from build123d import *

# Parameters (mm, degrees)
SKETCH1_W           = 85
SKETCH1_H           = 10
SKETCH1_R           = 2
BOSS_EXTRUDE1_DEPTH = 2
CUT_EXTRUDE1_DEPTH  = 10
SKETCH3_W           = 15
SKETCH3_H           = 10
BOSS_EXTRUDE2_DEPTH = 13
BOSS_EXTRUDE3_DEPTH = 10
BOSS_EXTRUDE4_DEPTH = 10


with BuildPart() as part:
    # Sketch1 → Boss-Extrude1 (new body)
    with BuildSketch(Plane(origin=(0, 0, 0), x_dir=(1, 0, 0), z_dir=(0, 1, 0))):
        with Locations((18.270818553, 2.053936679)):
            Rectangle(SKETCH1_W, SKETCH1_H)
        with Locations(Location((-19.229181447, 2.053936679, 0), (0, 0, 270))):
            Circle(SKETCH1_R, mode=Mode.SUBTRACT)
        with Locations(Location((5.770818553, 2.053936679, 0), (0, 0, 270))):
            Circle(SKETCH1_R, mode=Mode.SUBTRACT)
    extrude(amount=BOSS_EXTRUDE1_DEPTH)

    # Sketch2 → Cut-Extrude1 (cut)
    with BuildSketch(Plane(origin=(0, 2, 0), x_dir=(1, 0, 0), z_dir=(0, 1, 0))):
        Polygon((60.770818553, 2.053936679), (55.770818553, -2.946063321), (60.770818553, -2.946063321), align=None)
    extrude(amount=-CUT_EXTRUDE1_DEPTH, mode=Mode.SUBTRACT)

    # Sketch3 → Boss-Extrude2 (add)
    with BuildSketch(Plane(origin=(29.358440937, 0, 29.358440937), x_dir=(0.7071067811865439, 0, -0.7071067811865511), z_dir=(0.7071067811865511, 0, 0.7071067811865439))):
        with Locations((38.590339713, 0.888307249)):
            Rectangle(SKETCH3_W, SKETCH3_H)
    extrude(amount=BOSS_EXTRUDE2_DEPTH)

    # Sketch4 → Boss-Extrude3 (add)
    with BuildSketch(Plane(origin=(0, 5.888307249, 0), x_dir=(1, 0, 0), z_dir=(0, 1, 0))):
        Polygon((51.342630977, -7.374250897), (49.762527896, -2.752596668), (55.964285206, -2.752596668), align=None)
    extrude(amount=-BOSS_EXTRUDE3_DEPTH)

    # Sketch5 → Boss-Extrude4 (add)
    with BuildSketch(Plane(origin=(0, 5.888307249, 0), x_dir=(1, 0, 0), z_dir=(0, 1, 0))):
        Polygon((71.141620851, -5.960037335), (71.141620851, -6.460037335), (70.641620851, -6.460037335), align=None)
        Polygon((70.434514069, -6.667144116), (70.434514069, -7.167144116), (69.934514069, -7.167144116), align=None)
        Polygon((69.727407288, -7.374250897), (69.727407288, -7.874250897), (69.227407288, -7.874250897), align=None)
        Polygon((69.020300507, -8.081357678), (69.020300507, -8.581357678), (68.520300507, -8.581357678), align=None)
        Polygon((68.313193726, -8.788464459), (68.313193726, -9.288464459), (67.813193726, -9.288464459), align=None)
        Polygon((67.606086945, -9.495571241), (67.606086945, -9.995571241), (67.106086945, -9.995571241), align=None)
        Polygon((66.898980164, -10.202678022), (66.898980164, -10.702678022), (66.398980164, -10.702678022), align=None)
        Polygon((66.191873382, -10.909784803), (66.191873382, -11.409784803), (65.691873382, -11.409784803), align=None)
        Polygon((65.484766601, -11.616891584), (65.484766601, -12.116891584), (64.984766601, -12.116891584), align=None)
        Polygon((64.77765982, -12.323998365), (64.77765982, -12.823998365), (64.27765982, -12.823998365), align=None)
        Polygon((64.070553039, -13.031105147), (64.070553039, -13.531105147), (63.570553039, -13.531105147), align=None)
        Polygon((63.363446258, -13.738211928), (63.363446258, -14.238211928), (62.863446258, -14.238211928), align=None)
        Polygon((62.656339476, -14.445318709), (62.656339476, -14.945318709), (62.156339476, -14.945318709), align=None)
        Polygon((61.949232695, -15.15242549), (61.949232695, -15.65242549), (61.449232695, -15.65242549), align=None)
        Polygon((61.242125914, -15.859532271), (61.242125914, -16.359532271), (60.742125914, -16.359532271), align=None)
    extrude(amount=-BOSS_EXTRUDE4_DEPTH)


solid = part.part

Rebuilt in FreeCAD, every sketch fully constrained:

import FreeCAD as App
import Part
import Sketcher

V = App.Vector
Q = App.Units.Quantity

doc = App.newDocument("Part")
body = doc.addObject("PartDesign::Body", "Body")

# Sketch on XZ plane
sketch1 = body.newObject("Sketcher::SketchObject", "Sketch")
sketch1.AttachmentSupport = (doc.getObject("XZ_Plane"), [""])
sketch1.MapMode = "FlatFace"
sketch1.addGeometry(Part.LineSegment(V(-24.2, -7.1, 0), V(-24.2, 2.9, 0)), False)
sketch1.addGeometry(Part.LineSegment(V(-24.2, 2.9, 0), V(60.8, 2.9, 0)), False)
sketch1.addGeometry(Part.LineSegment(V(60.8, 2.9, 0), V(60.8, -7.1, 0)), False)
sketch1.addGeometry(Part.LineSegment(V(60.8, -7.1, 0), V(-24.2, -7.1, 0)), False)
sketch1.addGeometry(Part.Circle(V(-19.2, -2.1, 0), V(0, 0, 1), 2), False)
sketch1.addGeometry(Part.Circle(V(5.8, -2.1, 0), V(0, 0, 1), 2), False)
sketch1.addConstraint(Sketcher.Constraint("Coincident", 0, 2, 1, 1))
sketch1.addConstraint(Sketcher.Constraint("Coincident", 1, 2, 2, 1))
sketch1.addConstraint(Sketcher.Constraint("Coincident", 2, 2, 3, 1))
sketch1.addConstraint(Sketcher.Constraint("Coincident", 3, 2, 0, 1))
sketch1.addConstraint(Sketcher.Constraint("Vertical", 0))
sketch1.addConstraint(Sketcher.Constraint("Horizontal", 1))
sketch1.addConstraint(Sketcher.Constraint("Vertical", 2))
sketch1.addConstraint(Sketcher.Constraint("Horizontal", 3))
sketch1.addConstraint(Sketcher.Constraint("Equal", 4, 5))
sketch1.addConstraint(Sketcher.Constraint("Horizontal", 4, 3, 5, 3))
sketch1.addConstraint(Sketcher.Constraint("Diameter", 4, Q("4 mm")))
sketch1.addConstraint(Sketcher.Constraint("DistanceX", 1, 1, 1, 2, Q("85 mm")))
sketch1.addConstraint(Sketcher.Constraint("DistanceY", 0, 1, 0, 2, Q("10 mm")))
sketch1.addConstraint(Sketcher.Constraint("DistanceX", 4, 3, 5, 3, Q("25 mm")))
sketch1.addConstraint(Sketcher.Constraint("DistanceX", 0, 2, 4, 3, Q("5 mm")))
sketch1.addConstraint(Sketcher.Constraint("DistanceY", 4, 3, 0, 2, Q("5 mm")))
sketch1.addConstraint(Sketcher.Constraint("DistanceX", 4, 3, -1, 1, Q("19.229181 mm")))
sketch1.addConstraint(Sketcher.Constraint("DistanceY", 4, 3, -1, 1, Q("2.053937 mm")))
pad1 = body.newObject("PartDesign::Pad", "Pad")
pad1.Profile = sketch1
pad1.Length = 2
pad1.Reversed = True

# Sketch on XZ plane
sketch2 = body.newObject("Sketcher::SketchObject", "Sketch001")
sketch2.AttachmentSupport = (doc.getObject("XZ_Plane"), [""])
sketch2.MapMode = "FlatFace"
sketch2.AttachmentOffset = App.Placement(V(0, 0, -2), App.Rotation())
sketch2.addGeometry(Part.LineSegment(V(61, -2, 0), V(56, 3, 0)), False)
sketch2.addGeometry(Part.LineSegment(V(56, 3, 0), V(61, 3, 0)), False)
sketch2.addGeometry(Part.LineSegment(V(61, 3, 0), V(61, -2, 0)), False)
sketch2.addConstraint(Sketcher.Constraint("Coincident", 0, 2, 1, 1))
sketch2.addConstraint(Sketcher.Constraint("Coincident", 1, 2, 2, 1))
sketch2.addConstraint(Sketcher.Constraint("Coincident", 2, 2, 0, 1))
sketch2.addConstraint(Sketcher.Constraint("Horizontal", 1))
sketch2.addConstraint(Sketcher.Constraint("Vertical", 2))
sketch2.addConstraint(Sketcher.Constraint("Equal", 1, 2))
sketch2.addConstraint(Sketcher.Constraint("DistanceX", 1, 1, 1, 2, Q("5 mm")))
sketch2.addConstraint(Sketcher.Constraint("DistanceX", -1, 1, 0, 2, Q("55.770819 mm")))
sketch2.addConstraint(Sketcher.Constraint("DistanceY", -1, 1, 0, 2, Q("2.946063 mm")))
pocket1 = body.newObject("PartDesign::Pocket", "Pocket")
pocket1.Profile = sketch2
pocket1.Length = 10
pocket1.Reversed = True

# Sketch on an angled plane
sketch3 = body.newObject("Sketcher::SketchObject", "Sketch002")
sketch3.Placement = App.Placement(V(29.358441, 0, 29.358441), App.Rotation(V(0.707106781, 0, -0.707106781), V(0, 0.999999999, 0), V(0.707106781, 0, 0.707106781), "ZXY"))
sketch3.addGeometry(Part.LineSegment(V(31, 6, 0), V(31, -4, 0)), False)
sketch3.addGeometry(Part.LineSegment(V(31, -4, 0), V(46, -4, 0)), False)
sketch3.addGeometry(Part.LineSegment(V(46, -4, 0), V(46, 6, 0)), False)
sketch3.addGeometry(Part.LineSegment(V(46, 6, 0), V(31, 6, 0)), False)
sketch3.addConstraint(Sketcher.Constraint("Coincident", 0, 2, 1, 1))
sketch3.addConstraint(Sketcher.Constraint("Coincident", 1, 2, 2, 1))
sketch3.addConstraint(Sketcher.Constraint("Coincident", 2, 2, 3, 1))
sketch3.addConstraint(Sketcher.Constraint("Coincident", 3, 2, 0, 1))
sketch3.addConstraint(Sketcher.Constraint("Vertical", 0))
sketch3.addConstraint(Sketcher.Constraint("Horizontal", 1))
sketch3.addConstraint(Sketcher.Constraint("Vertical", 2))
sketch3.addConstraint(Sketcher.Constraint("Horizontal", 3))
sketch3.addConstraint(Sketcher.Constraint("DistanceX", 1, 1, 1, 2, Q("15 mm")))
sketch3.addConstraint(Sketcher.Constraint("DistanceY", 0, 2, 0, 1, Q("10 mm")))
sketch3.addConstraint(Sketcher.Constraint("DistanceX", -1, 1, 0, 2, Q("31.09034 mm")))
sketch3.addConstraint(Sketcher.Constraint("DistanceY", 0, 2, -1, 1, Q("4.111693 mm")))
pad2 = body.newObject("PartDesign::Pad", "Pad001")
pad2.Profile = sketch3
pad2.Length = 13

# Sketch on XZ plane
sketch4 = body.newObject("Sketcher::SketchObject", "Sketch003")
sketch4.AttachmentSupport = (doc.getObject("XZ_Plane"), [""])
sketch4.MapMode = "FlatFace"
sketch4.AttachmentOffset = App.Placement(V(0, 0, -5.888307), App.Rotation())
sketch4.addGeometry(Part.LineSegment(V(49.8, 2.8, 0), V(51.3, 7.4, 0)), False)
sketch4.addGeometry(Part.LineSegment(V(51.3, 7.4, 0), V(56, 2.8, 0)), False)
sketch4.addGeometry(Part.LineSegment(V(56, 2.8, 0), V(49.8, 2.8, 0)), False)
sketch4.addConstraint(Sketcher.Constraint("Coincident", 0, 2, 1, 1))
sketch4.addConstraint(Sketcher.Constraint("Coincident", 1, 2, 2, 1))
sketch4.addConstraint(Sketcher.Constraint("Coincident", 2, 2, 0, 1))
sketch4.addConstraint(Sketcher.Constraint("Horizontal", 2))
sketch4.addConstraint(Sketcher.Constraint("Angle", 1, Q("-45 deg")))
sketch4.addConstraint(Sketcher.Constraint("DistanceX", 2, 2, 2, 1, Q("6.201757 mm")))
sketch4.addConstraint(Sketcher.Constraint("DistanceX", -1, 1, 0, 2, Q("51.342631 mm")))
sketch4.addConstraint(Sketcher.Constraint("DistanceY", -1, 1, 0, 2, Q("7.374251 mm")))
sketch4.addConstraint(Sketcher.Constraint("Distance", 0, Q("4.884303 mm")))
pad3 = body.newObject("PartDesign::Pad", "Pad002")
pad3.Profile = sketch4
pad3.Length = 10

# Sketch on XZ plane
sketch5 = body.newObject("Sketcher::SketchObject", "Sketch004")
sketch5.AttachmentSupport = (doc.getObject("XZ_Plane"), [""])
sketch5.MapMode = "FlatFace"
sketch5.AttachmentOffset = App.Placement(V(0, 0, -5.888307), App.Rotation())
sketch5.addGeometry(Part.LineSegment(V(71.14, 6.46, 0), V(71.14, 5.96, 0)), False)
sketch5.addGeometry(Part.LineSegment(V(71.14, 5.96, 0), V(70.64, 6.46, 0)), False)
sketch5.addGeometry(Part.LineSegment(V(70.64, 6.46, 0), V(71.14, 6.46, 0)), False)
sketch5.addGeometry(Part.LineSegment(V(70.43, 7.17, 0), V(70.43, 6.67, 0)), False)
sketch5.addGeometry(Part.LineSegment(V(70.43, 6.67, 0), V(69.93, 7.17, 0)), False)
sketch5.addGeometry(Part.LineSegment(V(69.93, 7.17, 0), V(70.43, 7.17, 0)), False)
sketch5.addGeometry(Part.LineSegment(V(69.73, 7.87, 0), V(69.73, 7.37, 0)), False)
sketch5.addGeometry(Part.LineSegment(V(69.73, 7.37, 0), V(69.23, 7.87, 0)), False)
sketch5.addGeometry(Part.LineSegment(V(69.23, 7.87, 0), V(69.73, 7.87, 0)), False)
sketch5.addGeometry(Part.LineSegment(V(69.02, 8.58, 0), V(69.02, 8.08, 0)), False)
sketch5.addGeometry(Part.LineSegment(V(69.02, 8.08, 0), V(68.52, 8.58, 0)), False)
sketch5.addGeometry(Part.LineSegment(V(68.52, 8.58, 0), V(69.02, 8.58, 0)), False)
sketch5.addGeometry(Part.LineSegment(V(68.31, 9.29, 0), V(68.31, 8.79, 0)), False)
sketch5.addGeometry(Part.LineSegment(V(68.31, 8.79, 0), V(67.81, 9.29, 0)), False)
sketch5.addGeometry(Part.LineSegment(V(67.81, 9.29, 0), V(68.31, 9.29, 0)), False)
sketch5.addGeometry(Part.LineSegment(V(67.61, 10, 0), V(67.61, 9.5, 0)), False)
sketch5.addGeometry(Part.LineSegment(V(67.61, 9.5, 0), V(67.11, 10, 0)), False)
sketch5.addGeometry(Part.LineSegment(V(67.11, 10, 0), V(67.61, 10, 0)), False)
sketch5.addGeometry(Part.LineSegment(V(66.9, 10.7, 0), V(66.9, 10.2, 0)), False)
sketch5.addGeometry(Part.LineSegment(V(66.9, 10.2, 0), V(66.4, 10.7, 0)), False)
sketch5.addGeometry(Part.LineSegment(V(66.4, 10.7, 0), V(66.9, 10.7, 0)), False)
sketch5.addGeometry(Part.LineSegment(V(66.19, 11.41, 0), V(66.19, 10.91, 0)), False)
sketch5.addGeometry(Part.LineSegment(V(66.19, 10.91, 0), V(65.69, 11.41, 0)), False)
sketch5.addGeometry(Part.LineSegment(V(65.69, 11.41, 0), V(66.19, 11.41, 0)), False)
sketch5.addGeometry(Part.LineSegment(V(65.48, 12.12, 0), V(65.48, 11.62, 0)), False)
sketch5.addGeometry(Part.LineSegment(V(65.48, 11.62, 0), V(64.98, 12.12, 0)), False)
sketch5.addGeometry(Part.LineSegment(V(64.98, 12.12, 0), V(65.48, 12.12, 0)), False)
sketch5.addGeometry(Part.LineSegment(V(64.78, 12.82, 0), V(64.78, 12.32, 0)), False)
sketch5.addGeometry(Part.LineSegment(V(64.78, 12.32, 0), V(64.28, 12.82, 0)), False)
sketch5.addGeometry(Part.LineSegment(V(64.28, 12.82, 0), V(64.78, 12.82, 0)), False)
sketch5.addGeometry(Part.LineSegment(V(64.07, 13.53, 0), V(64.07, 13.03, 0)), False)
sketch5.addGeometry(Part.LineSegment(V(64.07, 13.03, 0), V(63.57, 13.53, 0)), False)
sketch5.addGeometry(Part.LineSegment(V(63.57, 13.53, 0), V(64.07, 13.53, 0)), False)
sketch5.addGeometry(Part.LineSegment(V(63.36, 14.24, 0), V(63.36, 13.74, 0)), False)
sketch5.addGeometry(Part.LineSegment(V(63.36, 13.74, 0), V(62.86, 14.24, 0)), False)
sketch5.addGeometry(Part.LineSegment(V(62.86, 14.24, 0), V(63.36, 14.24, 0)), False)
sketch5.addGeometry(Part.LineSegment(V(62.66, 14.95, 0), V(62.66, 14.45, 0)), False)
sketch5.addGeometry(Part.LineSegment(V(62.66, 14.45, 0), V(62.16, 14.95, 0)), False)
sketch5.addGeometry(Part.LineSegment(V(62.16, 14.95, 0), V(62.66, 14.95, 0)), False)
sketch5.addGeometry(Part.LineSegment(V(61.95, 15.65, 0), V(61.95, 15.15, 0)), False)
sketch5.addGeometry(Part.LineSegment(V(61.95, 15.15, 0), V(61.45, 15.65, 0)), False)
sketch5.addGeometry(Part.LineSegment(V(61.45, 15.65, 0), V(61.95, 15.65, 0)), False)
sketch5.addGeometry(Part.LineSegment(V(61.24, 16.36, 0), V(61.24, 15.86, 0)), False)
sketch5.addGeometry(Part.LineSegment(V(61.24, 15.86, 0), V(60.74, 16.36, 0)), False)
sketch5.addGeometry(Part.LineSegment(V(60.74, 16.36, 0), V(61.24, 16.36, 0)), False)
sketch5.addConstraint(Sketcher.Constraint("Coincident", 0, 2, 1, 1))
sketch5.addConstraint(Sketcher.Constraint("Coincident", 1, 2, 2, 1))
sketch5.addConstraint(Sketcher.Constraint("Coincident", 2, 2, 0, 1))
sketch5.addConstraint(Sketcher.Constraint("Coincident", 3, 2, 4, 1))
sketch5.addConstraint(Sketcher.Constraint("Coincident", 4, 2, 5, 1))
sketch5.addConstraint(Sketcher.Constraint("Coincident", 5, 2, 3, 1))
sketch5.addConstraint(Sketcher.Constraint("Coincident", 6, 2, 7, 1))
sketch5.addConstraint(Sketcher.Constraint("Coincident", 7, 2, 8, 1))
sketch5.addConstraint(Sketcher.Constraint("Coincident", 8, 2, 6, 1))
sketch5.addConstraint(Sketcher.Constraint("Coincident", 9, 2, 10, 1))
sketch5.addConstraint(Sketcher.Constraint("Coincident", 10, 2, 11, 1))
sketch5.addConstraint(Sketcher.Constraint("Coincident", 11, 2, 9, 1))
sketch5.addConstraint(Sketcher.Constraint("Coincident", 12, 2, 13, 1))
sketch5.addConstraint(Sketcher.Constraint("Coincident", 13, 2, 14, 1))
sketch5.addConstraint(Sketcher.Constraint("Coincident", 14, 2, 12, 1))
sketch5.addConstraint(Sketcher.Constraint("Coincident", 15, 2, 16, 1))
sketch5.addConstraint(Sketcher.Constraint("Coincident", 16, 2, 17, 1))
sketch5.addConstraint(Sketcher.Constraint("Coincident", 17, 2, 15, 1))
sketch5.addConstraint(Sketcher.Constraint("Coincident", 18, 2, 19, 1))
sketch5.addConstraint(Sketcher.Constraint("Coincident", 19, 2, 20, 1))
sketch5.addConstraint(Sketcher.Constraint("Coincident", 20, 2, 18, 1))
sketch5.addConstraint(Sketcher.Constraint("Coincident", 21, 2, 22, 1))
sketch5.addConstraint(Sketcher.Constraint("Coincident", 22, 2, 23, 1))
sketch5.addConstraint(Sketcher.Constraint("Coincident", 23, 2, 21, 1))
sketch5.addConstraint(Sketcher.Constraint("Coincident", 24, 2, 25, 1))
sketch5.addConstraint(Sketcher.Constraint("Coincident", 25, 2, 26, 1))
sketch5.addConstraint(Sketcher.Constraint("Coincident", 26, 2, 24, 1))
sketch5.addConstraint(Sketcher.Constraint("Coincident", 27, 2, 28, 1))
sketch5.addConstraint(Sketcher.Constraint("Coincident", 28, 2, 29, 1))
sketch5.addConstraint(Sketcher.Constraint("Coincident", 29, 2, 27, 1))
sketch5.addConstraint(Sketcher.Constraint("Coincident", 30, 2, 31, 1))
sketch5.addConstraint(Sketcher.Constraint("Coincident", 31, 2, 32, 1))
sketch5.addConstraint(Sketcher.Constraint("Coincident", 32, 2, 30, 1))
sketch5.addConstraint(Sketcher.Constraint("Coincident", 33, 2, 34, 1))
sketch5.addConstraint(Sketcher.Constraint("Coincident", 34, 2, 35, 1))
sketch5.addConstraint(Sketcher.Constraint("Coincident", 35, 2, 33, 1))
sketch5.addConstraint(Sketcher.Constraint("Coincident", 36, 2, 37, 1))
sketch5.addConstraint(Sketcher.Constraint("Coincident", 37, 2, 38, 1))
sketch5.addConstraint(Sketcher.Constraint("Coincident", 38, 2, 36, 1))
sketch5.addConstraint(Sketcher.Constraint("Coincident", 39, 2, 40, 1))
sketch5.addConstraint(Sketcher.Constraint("Coincident", 40, 2, 41, 1))
sketch5.addConstraint(Sketcher.Constraint("Coincident", 41, 2, 39, 1))
sketch5.addConstraint(Sketcher.Constraint("Coincident", 42, 2, 43, 1))
sketch5.addConstraint(Sketcher.Constraint("Coincident", 43, 2, 44, 1))
sketch5.addConstraint(Sketcher.Constraint("Coincident", 44, 2, 42, 1))
sketch5.addConstraint(Sketcher.Constraint("Vertical", 0))
sketch5.addConstraint(Sketcher.Constraint("Horizontal", 2))
sketch5.addConstraint(Sketcher.Constraint("Vertical", 3))
sketch5.addConstraint(Sketcher.Constraint("Horizontal", 5))
sketch5.addConstraint(Sketcher.Constraint("Vertical", 6))
sketch5.addConstraint(Sketcher.Constraint("Horizontal", 8))
sketch5.addConstraint(Sketcher.Constraint("Vertical", 9))
sketch5.addConstraint(Sketcher.Constraint("Horizontal", 11))
sketch5.addConstraint(Sketcher.Constraint("Vertical", 12))
sketch5.addConstraint(Sketcher.Constraint("Horizontal", 14))
sketch5.addConstraint(Sketcher.Constraint("Vertical", 15))
sketch5.addConstraint(Sketcher.Constraint("Horizontal", 17))
sketch5.addConstraint(Sketcher.Constraint("Vertical", 18))
sketch5.addConstraint(Sketcher.Constraint("Horizontal", 20))
sketch5.addConstraint(Sketcher.Constraint("Vertical", 21))
sketch5.addConstraint(Sketcher.Constraint("Horizontal", 23))
sketch5.addConstraint(Sketcher.Constraint("Vertical", 24))
sketch5.addConstraint(Sketcher.Constraint("Horizontal", 26))
sketch5.addConstraint(Sketcher.Constraint("Vertical", 27))
sketch5.addConstraint(Sketcher.Constraint("Horizontal", 29))
sketch5.addConstraint(Sketcher.Constraint("Vertical", 30))
sketch5.addConstraint(Sketcher.Constraint("Horizontal", 32))
sketch5.addConstraint(Sketcher.Constraint("Vertical", 33))
sketch5.addConstraint(Sketcher.Constraint("Horizontal", 35))
sketch5.addConstraint(Sketcher.Constraint("Vertical", 36))
sketch5.addConstraint(Sketcher.Constraint("Horizontal", 38))
sketch5.addConstraint(Sketcher.Constraint("Vertical", 39))
sketch5.addConstraint(Sketcher.Constraint("Horizontal", 41))
sketch5.addConstraint(Sketcher.Constraint("Vertical", 42))
sketch5.addConstraint(Sketcher.Constraint("Horizontal", 44))
sketch5.addConstraint(Sketcher.Constraint("Parallel", 1, 4))
sketch5.addConstraint(Sketcher.Constraint("Parallel", 4, 7))
sketch5.addConstraint(Sketcher.Constraint("Parallel", 7, 10))
sketch5.addConstraint(Sketcher.Constraint("Parallel", 10, 13))
sketch5.addConstraint(Sketcher.Constraint("Parallel", 13, 16))
sketch5.addConstraint(Sketcher.Constraint("Parallel", 16, 19))
sketch5.addConstraint(Sketcher.Constraint("Parallel", 19, 22))
sketch5.addConstraint(Sketcher.Constraint("Parallel", 22, 25))
sketch5.addConstraint(Sketcher.Constraint("Parallel", 25, 28))
sketch5.addConstraint(Sketcher.Constraint("Parallel", 28, 31))
sketch5.addConstraint(Sketcher.Constraint("Parallel", 31, 34))
sketch5.addConstraint(Sketcher.Constraint("Parallel", 34, 37))
sketch5.addConstraint(Sketcher.Constraint("Parallel", 37, 40))
sketch5.addConstraint(Sketcher.Constraint("Parallel", 40, 43))
sketch5.addConstraint(Sketcher.Constraint("Equal", 2, 5))
sketch5.addConstraint(Sketcher.Constraint("Equal", 5, 8))
sketch5.addConstraint(Sketcher.Constraint("Equal", 8, 11))
sketch5.addConstraint(Sketcher.Constraint("Equal", 11, 14))
sketch5.addConstraint(Sketcher.Constraint("Equal", 14, 17))
sketch5.addConstraint(Sketcher.Constraint("Equal", 17, 20))
sketch5.addConstraint(Sketcher.Constraint("Equal", 20, 23))
sketch5.addConstraint(Sketcher.Constraint("Equal", 23, 26))
sketch5.addConstraint(Sketcher.Constraint("Equal", 26, 29))
sketch5.addConstraint(Sketcher.Constraint("Equal", 29, 32))
sketch5.addConstraint(Sketcher.Constraint("Equal", 32, 35))
sketch5.addConstraint(Sketcher.Constraint("Equal", 35, 38))
sketch5.addConstraint(Sketcher.Constraint("Equal", 38, 41))
sketch5.addConstraint(Sketcher.Constraint("Equal", 41, 44))
sketch5.addConstraint(Sketcher.Constraint("Equal", 44, 0))
sketch5.addConstraint(Sketcher.Constraint("DistanceX", 2, 1, 2, 2, Q("0.5 mm")))
sketch5.addConstraint(Sketcher.Constraint("DistanceY", -1, 1, 27, 2, Q("12.323998 mm")))
sketch5.addConstraint(Sketcher.Constraint("DistanceX", -1, 1, 9, 2, Q("69.020301 mm")))
sketch5.addConstraint(Sketcher.Constraint("DistanceX", -1, 1, 0, 2, Q("71.141621 mm")))
sketch5.addConstraint(Sketcher.Constraint("DistanceY", -1, 1, 6, 2, Q("7.374251 mm")))
sketch5.addConstraint(Sketcher.Constraint("DistanceY", -1, 1, 15, 2, Q("9.495571 mm")))
sketch5.addConstraint(Sketcher.Constraint("DistanceX", -1, 1, 18, 2, Q("66.89898 mm")))
sketch5.addConstraint(Sketcher.Constraint("DistanceY", -1, 1, 18, 2, Q("10.202678 mm")))
sketch5.addConstraint(Sketcher.Constraint("DistanceY", -1, 1, 24, 2, Q("11.616892 mm")))
sketch5.addConstraint(Sketcher.Constraint("DistanceX", -1, 1, 27, 2, Q("64.77766 mm")))
sketch5.addConstraint(Sketcher.Constraint("DistanceY", -1, 1, 33, 2, Q("13.738212 mm")))
sketch5.addConstraint(Sketcher.Constraint("DistanceX", -1, 1, 36, 2, Q("62.656339 mm")))
sketch5.addConstraint(Sketcher.Constraint("DistanceY", -1, 1, 36, 2, Q("14.445319 mm")))
sketch5.addConstraint(Sketcher.Constraint("DistanceY", -1, 1, 0, 2, Q("5.960037 mm")))
sketch5.addConstraint(Sketcher.Constraint("DistanceX", -1, 1, 3, 2, Q("70.434514 mm")))
sketch5.addConstraint(Sketcher.Constraint("DistanceY", -1, 1, 3, 2, Q("6.667144 mm")))
sketch5.addConstraint(Sketcher.Constraint("DistanceX", -1, 1, 6, 2, Q("69.727407 mm")))
sketch5.addConstraint(Sketcher.Constraint("DistanceY", -1, 1, 9, 2, Q("8.081358 mm")))
sketch5.addConstraint(Sketcher.Constraint("DistanceX", -1, 1, 12, 2, Q("68.313194 mm")))
sketch5.addConstraint(Sketcher.Constraint("DistanceY", -1, 1, 12, 2, Q("8.788464 mm")))
sketch5.addConstraint(Sketcher.Constraint("DistanceX", -1, 1, 15, 2, Q("67.606087 mm")))
sketch5.addConstraint(Sketcher.Constraint("DistanceX", -1, 1, 21, 2, Q("66.191873 mm")))
sketch5.addConstraint(Sketcher.Constraint("DistanceY", -1, 1, 21, 2, Q("10.909785 mm")))
sketch5.addConstraint(Sketcher.Constraint("DistanceX", -1, 1, 24, 2, Q("65.484767 mm")))
sketch5.addConstraint(Sketcher.Constraint("DistanceX", -1, 1, 30, 2, Q("64.070553 mm")))
sketch5.addConstraint(Sketcher.Constraint("DistanceY", -1, 1, 30, 2, Q("13.031105 mm")))
sketch5.addConstraint(Sketcher.Constraint("DistanceX", -1, 1, 33, 2, Q("63.363446 mm")))
sketch5.addConstraint(Sketcher.Constraint("DistanceX", -1, 1, 39, 2, Q("61.949233 mm")))
sketch5.addConstraint(Sketcher.Constraint("DistanceY", -1, 1, 39, 2, Q("15.152425 mm")))
sketch5.addConstraint(Sketcher.Constraint("DistanceX", -1, 1, 42, 2, Q("61.242126 mm")))
sketch5.addConstraint(Sketcher.Constraint("DistanceY", -1, 1, 42, 2, Q("15.859532 mm")))
pad4 = body.newObject("PartDesign::Pad", "Pad003")
pad4.Profile = sketch5
pad4.Length = 10

doc.recompute()
